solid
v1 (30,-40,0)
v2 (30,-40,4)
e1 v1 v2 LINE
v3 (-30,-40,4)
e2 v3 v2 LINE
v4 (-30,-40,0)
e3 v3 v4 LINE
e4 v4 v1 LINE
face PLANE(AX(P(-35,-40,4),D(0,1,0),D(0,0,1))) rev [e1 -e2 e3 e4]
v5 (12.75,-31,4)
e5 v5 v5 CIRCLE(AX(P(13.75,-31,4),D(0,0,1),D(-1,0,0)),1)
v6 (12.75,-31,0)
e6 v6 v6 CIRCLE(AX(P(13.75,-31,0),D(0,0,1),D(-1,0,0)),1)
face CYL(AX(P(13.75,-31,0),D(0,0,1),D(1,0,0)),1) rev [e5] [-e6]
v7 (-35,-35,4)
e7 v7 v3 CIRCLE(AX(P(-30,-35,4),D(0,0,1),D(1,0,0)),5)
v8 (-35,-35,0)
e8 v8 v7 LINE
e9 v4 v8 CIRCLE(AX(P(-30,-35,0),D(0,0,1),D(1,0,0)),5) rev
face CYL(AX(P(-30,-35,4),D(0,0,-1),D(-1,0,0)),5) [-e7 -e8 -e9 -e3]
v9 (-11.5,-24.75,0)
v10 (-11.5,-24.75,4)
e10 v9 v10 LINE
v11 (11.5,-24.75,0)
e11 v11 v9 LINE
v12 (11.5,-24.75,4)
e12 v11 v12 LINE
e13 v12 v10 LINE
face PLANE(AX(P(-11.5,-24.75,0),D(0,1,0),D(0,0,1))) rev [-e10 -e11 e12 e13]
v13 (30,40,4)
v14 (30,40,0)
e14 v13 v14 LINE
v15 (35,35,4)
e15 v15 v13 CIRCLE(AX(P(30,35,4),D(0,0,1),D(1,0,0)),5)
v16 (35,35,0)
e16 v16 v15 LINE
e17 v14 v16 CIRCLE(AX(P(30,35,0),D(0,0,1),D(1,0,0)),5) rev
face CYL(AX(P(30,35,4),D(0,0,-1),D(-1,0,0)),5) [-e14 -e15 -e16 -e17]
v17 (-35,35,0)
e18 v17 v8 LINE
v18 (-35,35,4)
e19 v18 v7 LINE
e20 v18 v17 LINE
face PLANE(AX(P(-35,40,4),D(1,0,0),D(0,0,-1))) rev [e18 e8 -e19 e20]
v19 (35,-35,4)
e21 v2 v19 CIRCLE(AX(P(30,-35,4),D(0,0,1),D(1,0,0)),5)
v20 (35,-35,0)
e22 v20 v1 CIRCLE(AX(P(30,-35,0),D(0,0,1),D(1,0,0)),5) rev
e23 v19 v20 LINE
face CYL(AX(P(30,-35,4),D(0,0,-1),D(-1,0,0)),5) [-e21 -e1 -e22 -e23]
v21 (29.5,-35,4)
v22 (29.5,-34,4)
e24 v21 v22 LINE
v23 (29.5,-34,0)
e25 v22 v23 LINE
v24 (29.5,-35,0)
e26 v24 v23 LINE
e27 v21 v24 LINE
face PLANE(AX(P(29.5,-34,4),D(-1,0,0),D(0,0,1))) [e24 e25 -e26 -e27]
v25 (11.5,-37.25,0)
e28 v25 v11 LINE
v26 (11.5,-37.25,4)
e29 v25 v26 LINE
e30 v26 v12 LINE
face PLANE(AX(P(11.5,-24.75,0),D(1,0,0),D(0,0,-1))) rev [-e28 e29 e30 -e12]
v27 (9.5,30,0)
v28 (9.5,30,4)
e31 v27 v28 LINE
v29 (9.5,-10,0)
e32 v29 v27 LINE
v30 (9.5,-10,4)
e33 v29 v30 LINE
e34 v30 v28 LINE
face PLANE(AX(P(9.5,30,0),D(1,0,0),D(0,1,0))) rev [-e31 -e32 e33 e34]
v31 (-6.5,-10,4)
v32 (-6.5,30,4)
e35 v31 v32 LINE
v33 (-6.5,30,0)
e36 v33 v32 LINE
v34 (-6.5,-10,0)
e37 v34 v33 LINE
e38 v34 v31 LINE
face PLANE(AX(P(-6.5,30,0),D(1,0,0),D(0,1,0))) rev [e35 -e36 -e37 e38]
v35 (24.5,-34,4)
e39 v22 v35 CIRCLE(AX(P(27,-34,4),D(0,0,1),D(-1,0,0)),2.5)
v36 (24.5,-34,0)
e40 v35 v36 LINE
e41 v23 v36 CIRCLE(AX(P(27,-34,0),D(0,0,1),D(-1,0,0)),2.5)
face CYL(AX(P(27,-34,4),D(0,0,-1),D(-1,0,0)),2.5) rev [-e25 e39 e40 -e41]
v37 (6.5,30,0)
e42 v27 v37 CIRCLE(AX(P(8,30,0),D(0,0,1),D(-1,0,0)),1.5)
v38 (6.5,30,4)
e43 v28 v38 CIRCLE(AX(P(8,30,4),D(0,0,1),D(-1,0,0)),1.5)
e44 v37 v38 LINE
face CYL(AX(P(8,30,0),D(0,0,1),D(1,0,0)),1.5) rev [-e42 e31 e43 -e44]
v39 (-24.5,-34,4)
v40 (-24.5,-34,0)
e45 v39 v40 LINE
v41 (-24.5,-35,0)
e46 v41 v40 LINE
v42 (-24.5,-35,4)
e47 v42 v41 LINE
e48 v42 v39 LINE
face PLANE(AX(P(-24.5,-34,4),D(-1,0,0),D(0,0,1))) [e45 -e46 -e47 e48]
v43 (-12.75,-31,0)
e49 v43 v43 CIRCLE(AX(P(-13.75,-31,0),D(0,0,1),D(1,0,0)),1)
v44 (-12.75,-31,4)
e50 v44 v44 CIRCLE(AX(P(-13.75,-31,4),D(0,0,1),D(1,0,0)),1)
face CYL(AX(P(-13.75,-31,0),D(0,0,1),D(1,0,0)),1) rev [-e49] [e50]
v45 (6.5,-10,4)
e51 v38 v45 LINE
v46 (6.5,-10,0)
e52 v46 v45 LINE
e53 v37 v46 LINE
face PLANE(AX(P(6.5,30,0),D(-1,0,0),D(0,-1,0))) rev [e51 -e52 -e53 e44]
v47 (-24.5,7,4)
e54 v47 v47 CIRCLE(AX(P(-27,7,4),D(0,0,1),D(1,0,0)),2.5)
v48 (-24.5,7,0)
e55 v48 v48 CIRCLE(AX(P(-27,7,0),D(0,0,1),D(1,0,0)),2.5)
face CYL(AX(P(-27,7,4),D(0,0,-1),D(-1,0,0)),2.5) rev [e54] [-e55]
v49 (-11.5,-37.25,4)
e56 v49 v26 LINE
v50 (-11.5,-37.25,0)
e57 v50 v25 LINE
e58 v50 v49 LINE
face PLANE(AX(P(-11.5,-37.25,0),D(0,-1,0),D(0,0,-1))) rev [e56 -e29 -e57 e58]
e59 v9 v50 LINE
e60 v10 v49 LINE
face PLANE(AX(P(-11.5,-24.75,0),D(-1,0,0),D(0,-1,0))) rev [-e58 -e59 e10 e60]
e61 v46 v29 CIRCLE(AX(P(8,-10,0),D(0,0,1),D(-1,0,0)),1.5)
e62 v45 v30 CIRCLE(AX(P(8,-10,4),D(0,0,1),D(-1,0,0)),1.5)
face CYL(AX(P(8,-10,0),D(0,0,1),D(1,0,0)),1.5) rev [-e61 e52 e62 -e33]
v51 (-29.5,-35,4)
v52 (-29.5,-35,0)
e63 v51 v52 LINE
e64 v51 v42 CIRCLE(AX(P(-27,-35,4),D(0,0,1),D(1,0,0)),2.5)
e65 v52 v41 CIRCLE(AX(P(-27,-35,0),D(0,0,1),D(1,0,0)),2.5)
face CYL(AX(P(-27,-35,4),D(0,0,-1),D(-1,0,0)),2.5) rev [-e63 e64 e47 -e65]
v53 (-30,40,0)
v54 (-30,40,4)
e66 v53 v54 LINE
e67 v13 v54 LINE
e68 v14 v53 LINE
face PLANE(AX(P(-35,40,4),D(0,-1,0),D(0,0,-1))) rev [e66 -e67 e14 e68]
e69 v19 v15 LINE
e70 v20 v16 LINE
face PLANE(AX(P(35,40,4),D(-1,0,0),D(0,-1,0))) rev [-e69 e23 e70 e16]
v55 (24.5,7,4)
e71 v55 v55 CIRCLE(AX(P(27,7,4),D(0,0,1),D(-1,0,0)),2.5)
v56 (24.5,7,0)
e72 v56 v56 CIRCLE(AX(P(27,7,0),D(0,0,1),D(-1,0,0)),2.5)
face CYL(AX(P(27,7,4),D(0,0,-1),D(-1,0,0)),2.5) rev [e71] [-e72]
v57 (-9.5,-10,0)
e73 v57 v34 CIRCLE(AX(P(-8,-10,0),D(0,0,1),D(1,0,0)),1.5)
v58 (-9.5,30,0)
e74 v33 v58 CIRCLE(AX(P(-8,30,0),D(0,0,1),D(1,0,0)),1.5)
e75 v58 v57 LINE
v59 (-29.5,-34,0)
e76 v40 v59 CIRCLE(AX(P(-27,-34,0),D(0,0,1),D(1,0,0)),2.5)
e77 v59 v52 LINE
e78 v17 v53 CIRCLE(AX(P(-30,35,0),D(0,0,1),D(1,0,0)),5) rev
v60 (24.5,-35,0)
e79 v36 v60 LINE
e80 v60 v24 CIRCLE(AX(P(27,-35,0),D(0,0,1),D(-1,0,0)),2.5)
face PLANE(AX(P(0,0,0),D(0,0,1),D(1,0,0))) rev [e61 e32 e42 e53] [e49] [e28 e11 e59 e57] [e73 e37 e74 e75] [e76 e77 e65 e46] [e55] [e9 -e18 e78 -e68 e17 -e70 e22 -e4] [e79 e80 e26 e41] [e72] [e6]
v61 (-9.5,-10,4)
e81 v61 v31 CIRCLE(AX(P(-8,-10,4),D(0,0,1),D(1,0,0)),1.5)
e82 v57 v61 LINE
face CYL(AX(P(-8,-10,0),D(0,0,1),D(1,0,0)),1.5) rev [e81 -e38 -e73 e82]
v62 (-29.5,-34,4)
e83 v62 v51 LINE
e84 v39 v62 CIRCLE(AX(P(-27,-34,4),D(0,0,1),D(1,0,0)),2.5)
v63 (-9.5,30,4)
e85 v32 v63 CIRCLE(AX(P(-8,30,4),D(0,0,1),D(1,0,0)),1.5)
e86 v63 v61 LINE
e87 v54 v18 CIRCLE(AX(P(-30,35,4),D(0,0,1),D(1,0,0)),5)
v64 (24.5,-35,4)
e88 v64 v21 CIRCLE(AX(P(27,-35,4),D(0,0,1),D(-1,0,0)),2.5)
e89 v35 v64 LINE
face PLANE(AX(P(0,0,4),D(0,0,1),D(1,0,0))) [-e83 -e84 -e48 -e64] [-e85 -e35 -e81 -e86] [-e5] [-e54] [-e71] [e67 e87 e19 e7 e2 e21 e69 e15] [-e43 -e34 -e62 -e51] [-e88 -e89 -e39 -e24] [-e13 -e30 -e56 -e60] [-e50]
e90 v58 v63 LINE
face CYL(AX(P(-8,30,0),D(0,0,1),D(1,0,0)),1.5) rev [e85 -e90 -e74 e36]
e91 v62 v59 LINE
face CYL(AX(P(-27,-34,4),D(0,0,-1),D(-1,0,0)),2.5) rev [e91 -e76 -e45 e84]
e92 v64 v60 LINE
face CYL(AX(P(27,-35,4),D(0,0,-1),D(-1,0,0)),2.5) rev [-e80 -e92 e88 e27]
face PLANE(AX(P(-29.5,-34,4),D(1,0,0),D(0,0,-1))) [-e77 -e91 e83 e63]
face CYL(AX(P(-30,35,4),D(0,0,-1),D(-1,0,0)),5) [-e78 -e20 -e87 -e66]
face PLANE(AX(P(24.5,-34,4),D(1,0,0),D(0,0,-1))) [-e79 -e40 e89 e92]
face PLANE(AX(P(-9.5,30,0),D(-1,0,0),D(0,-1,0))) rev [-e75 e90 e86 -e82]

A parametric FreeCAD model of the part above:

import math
import FreeCAD as App
import Part
import Sketcher
from FreeCAD import Vector
Q = App.Units.Quantity


def edges_at(feature, points):
    """Names of the edges that pass closest to the given points."""
    edges = feature.Shape.Edges
    near = lambda p: min(range(len(edges)), key=lambda i: edges[i].distToShape(Part.Vertex(*p))[0])
    return sorted({f"Edge{near(p) + 1}" for p in points})


def add_polygon(sketch, points):
    """Adds a closed chain of lines whose ends are joined by coincident constraints."""
    first, n = sketch.GeometryCount, len(points)
    for a, b in zip(points, points[1:] + points[:1]):
        sketch.addGeometry(Part.LineSegment(App.Vector(*a, 0), App.Vector(*b, 0)), False)
    for i in range(n):
        sketch.addConstraint(Sketcher.Constraint("Coincident", first + i, 2, first + (i + 1) % n, 1))

doc = App.newDocument("Part")
body = doc.addObject("PartDesign::Body", "Body")

sketch1 = doc.addObject("Sketcher::SketchObject", "Sketch")
body.addObject(sketch1)
sketch1.AttachmentSupport = (doc.XY_Plane, [""])
sketch1.MapMode = "FlatFace"
add_polygon(sketch1, [(-35, 40), (-35, -40), (35, -40), (35, 40)])
sketch1.addGeometry(Part.ArcOfCircle(Part.Circle(Vector(-27, -34, 0), Vector(0, 0, 1), 2.5), math.radians(0), math.radians(180)), False)
sketch1.addGeometry(Part.LineSegment(Vector(-24.5, -34, 0), Vector(-24.5, -35, 0)), False)
sketch1.addGeometry(Part.ArcOfCircle(Part.Circle(Vector(-27, -35, 0), Vector(0, 0, 1), 2.5), math.radians(180), math.radians(360)), False)
sketch1.addGeometry(Part.LineSegment(Vector(-29.5, -35, 0), Vector(-29.5, -34, 0)), False)
sketch1.addGeometry(Part.LineSegment(Vector(24.5, -35, 0), Vector(24.5, -34, 0)), False)
sketch1.addGeometry(Part.ArcOfCircle(Part.Circle(Vector(27, -34, 0), Vector(0, 0, 1), 2.5), math.radians(0), math.radians(180)), False)
sketch1.addGeometry(Part.LineSegment(Vector(29.5, -34, 0), Vector(29.5, -35, 0)), False)
sketch1.addGeometry(Part.ArcOfCircle(Part.Circle(Vector(27, -35, 0), Vector(0, 0, 1), 2.5), math.radians(180), math.radians(360)), False)
sketch1.addGeometry(Part.Circle(Vector(-27, 7, 0), Vector(0, 0, 1), 2.5), False)
sketch1.addGeometry(Part.Circle(Vector(27, 7, 0), Vector(0, 0, 1), 2.5), False)
sketch1.addConstraint([
    Sketcher.Constraint("Tangent", 4, 1, 5, 1),
    Sketcher.Constraint("Tangent", 5, 2, 6, 2),
    Sketcher.Constraint("Tangent", 6, 1, 7, 1),
    Sketcher.Constraint("Tangent", 7, 2, 4, 2),
    Sketcher.Constraint("Tangent", 8, 2, 9, 2),
    Sketcher.Constraint("Tangent", 9, 1, 10, 1),
    Sketcher.Constraint("Tangent", 10, 2, 11, 2),
    Sketcher.Constraint("Tangent", 11, 1, 8, 1),
    Sketcher.Constraint("Vertical", 0),
    Sketcher.Constraint("Horizontal", 1),
    Sketcher.Constraint("Vertical", 2),
    Sketcher.Constraint("Horizontal", 3),
    Sketcher.Constraint("Vertical", 5),
    Sketcher.Constraint("Vertical", 7),
    Sketcher.Constraint("Vertical", 8),
    Sketcher.Constraint("Vertical", 10),
    Sketcher.Constraint("Equal", 6, 9),
    Sketcher.Constraint("Equal", 11, 12),
    Sketcher.Constraint("Equal", 12, 13),
    Sketcher.Constraint("Symmetric", 0, 2, 2, 2, -1, 1),
    Sketcher.Constraint("Symmetric", 4, 3, 9, 3, -2),
    Sketcher.Constraint("Symmetric", 12, 3, 13, 3, -2),
    Sketcher.Constraint("Horizontal", 6, 3, 11, 3),
    Sketcher.Constraint("Vertical", 6, 3, 12, 3),
    Sketcher.Constraint("Diameter", 12, Q("5 mm")),
    Sketcher.Constraint("DistanceX", 1, 1, 1, 2, Q("70 mm")),
    Sketcher.Constraint("DistanceY", 0, 2, 0, 1, Q("80 mm")),
    Sketcher.Constraint("DistanceY", 5, 2, 5, 1, Q("1 mm")),
    Sketcher.Constraint("DistanceX", 4, 3, -1, 1, Q("27 mm")),
    Sketcher.Constraint("DistanceY", 4, 3, -1, 1, Q("34 mm")),
    Sketcher.Constraint("DistanceY", -1, 1, 12, 3, Q("7 mm")),
])
pad1 = doc.addObject("PartDesign::Pad", "Pad")
body.addObject(pad1)
pad1.Profile = sketch1
pad1.Length = 4
doc.recompute()

fillet = doc.addObject("PartDesign::Fillet", "Fillet")
body.addObject(fillet)
fillet.Base = (pad1, edges_at(pad1, [
    (35, -40, 2),
    (-35, -40, 2),
    (-35, 40, 2),
    (35, 40, 2),
]))
fillet.Radius = 5

sketch2 = doc.addObject("Sketcher::SketchObject", "Sketch001")
body.addObject(sketch2)
sketch2.AttachmentSupport = (doc.XY_Plane, [""])
sketch2.MapMode = "FlatFace"
sketch2.AttachmentOffset = App.Placement(Vector(0, 0, 4), App.Rotation())
sketch2.addGeometry(Part.Circle(Vector(-13.8, -31, 0), Vector(0, 0, 1), 1), False)
sketch2.addGeometry(Part.Circle(Vector(13.8, -31, 0), Vector(0, 0, 1), 1), False)
add_polygon(sketch2, [(-11.5, -24.8), (-11.5, -37.2), (11.5, -37.2), (11.5, -24.8)])
sketch2.addGeometry(Part.LineSegment(Vector(-6.5, -10, 0), Vector(-6.5, 30, 0)), False)
sketch2.addGeometry(Part.ArcOfCircle(Part.Circle(Vector(-8, 30, 0), Vector(0, 0, 1), 1.5), math.radians(0), math.radians(180)), False)
sketch2.addGeometry(Part.LineSegment(Vector(-9.5, 30, 0), Vector(-9.5, -10, 0)), False)
sketch2.addGeometry(Part.ArcOfCircle(Part.Circle(Vector(-8, -10, 0), Vector(0, 0, 1), 1.5), math.radians(180), math.radians(360)), False)
sketch2.addGeometry(Part.LineSegment(Vector(6.5, 30, 0), Vector(6.5, -10, 0)), False)
sketch2.addGeometry(Part.ArcOfCircle(Part.Circle(Vector(8, -10, 0), Vector(0, 0, 1), 1.5), math.radians(180), math.radians(360)), False)
sketch2.addGeometry(Part.LineSegment(Vector(9.5, -10, 0), Vector(9.5, 30, 0)), False)
sketch2.addGeometry(Part.ArcOfCircle(Part.Circle(Vector(8, 30, 0), Vector(0, 0, 1), 1.5), math.radians(0), math.radians(180)), False)
sketch2.addConstraint([
    Sketcher.Constraint("Tangent", 6, 2, 7, 1),
    Sketcher.Constraint("Tangent", 7, 2, 8, 1),
    Sketcher.Constraint("Tangent", 8, 2, 9, 1),
    Sketcher.Constraint("Tangent", 9, 2, 6, 1),
    Sketcher.Constraint("Tangent", 10, 2, 11, 1),
    Sketcher.Constraint("Tangent", 11, 2, 12, 1),
    Sketcher.Constraint("Tangent", 12, 2, 13, 1),
    Sketcher.Constraint("Tangent", 13, 2, 10, 1),
    Sketcher.Constraint("Vertical", 2),
    Sketcher.Constraint("Horizontal", 3),
    Sketcher.Constraint("Vertical", 4),
    Sketcher.Constraint("Horizontal", 5),
    Sketcher.Constraint("Vertical", 6),
    Sketcher.Constraint("Vertical", 8),
    Sketcher.Constraint("Vertical", 10),
    Sketcher.Constraint("Vertical", 12),
    Sketcher.Constraint("Equal", 0, 1),
    Sketcher.Constraint("Equal", 9, 11),
    Sketcher.Constraint("Symmetric", 0, 3, 1, 3, -2),
    Sketcher.Constraint("Symmetric", 9, 3, 11, 3, -2),
    Sketcher.Constraint("Horizontal", 7, 3, 13, 3),
    Sketcher.Constraint("Diameter", 0, Q("2 mm")),
    Sketcher.Constraint("Radius", 7, Q("1.5 mm")),
    Sketcher.Constraint("DistanceX", 3, 1, 3, 2, Q("23 mm")),
    Sketcher.Constraint("DistanceY", 6, 1, 6, 2, Q("40 mm")),
    Sketcher.Constraint("DistanceY", 2, 2, 2, 1, Q("12.5 mm")),
    Sketcher.Constraint("DistanceY", 0, 3, -1, 1, Q("31 mm")),
    Sketcher.Constraint("DistanceX", 7, 3, -1, 1, Q("8 mm")),
    Sketcher.Constraint("DistanceY", -1, 1, 7, 3, Q("30 mm")),
    Sketcher.Constraint("DistanceX", 5, 2, 6, 2, Q("5 mm")),
    Sketcher.Constraint("DistanceX", 0, 3, 1, 3, Q("27.5 mm")),
    Sketcher.Constraint("DistanceY", 2, 2, -1, 1, Q("37.25 mm")),
])
pocket1 = doc.addObject("PartDesign::Pocket", "Pocket")
body.addObject(pocket1)
pocket1.Profile = sketch2
pocket1.Type = "ThroughAll"

doc.recompute()
